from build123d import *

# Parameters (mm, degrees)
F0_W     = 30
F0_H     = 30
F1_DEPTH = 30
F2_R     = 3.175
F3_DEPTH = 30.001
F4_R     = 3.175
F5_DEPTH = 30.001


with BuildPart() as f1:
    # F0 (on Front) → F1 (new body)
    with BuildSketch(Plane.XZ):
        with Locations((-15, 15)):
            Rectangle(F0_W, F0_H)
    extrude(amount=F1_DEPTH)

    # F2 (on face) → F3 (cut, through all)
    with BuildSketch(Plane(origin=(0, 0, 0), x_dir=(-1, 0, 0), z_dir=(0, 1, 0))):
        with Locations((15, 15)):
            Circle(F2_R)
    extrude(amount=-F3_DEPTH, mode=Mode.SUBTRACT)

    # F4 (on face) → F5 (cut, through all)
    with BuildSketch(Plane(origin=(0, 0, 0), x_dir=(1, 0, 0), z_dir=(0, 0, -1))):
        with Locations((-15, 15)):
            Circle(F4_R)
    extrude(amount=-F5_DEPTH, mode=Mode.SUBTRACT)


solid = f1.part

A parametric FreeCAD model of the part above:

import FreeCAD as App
import Part
import Sketcher
from FreeCAD import Vector


def add_polygon(sketch, points):
    """Adds a closed chain of lines whose ends are joined by coincident constraints."""
    first, n = sketch.GeometryCount, len(points)
    for a, b in zip(points, points[1:] + points[:1]):
        sketch.addGeometry(Part.LineSegment(App.Vector(*a, 0), App.Vector(*b, 0)), False)
    for i in range(n):
        sketch.addConstraint(Sketcher.Constraint("Coincident", first + i, 2, first + (i + 1) % n, 1))

doc = App.newDocument("Part")
body = doc.addObject("PartDesign::Body", "Body")

# Sketch on XZ plane
sketch1 = body.newObject("Sketcher::SketchObject", "Sketch")
sketch1.AttachmentSupport = (doc.getObject("XZ_Plane"), [""])
sketch1.MapMode = "FlatFace"
add_polygon(sketch1, [(-30, 30), (-30, 0), (0, 0), (0, 30)])  # lines 0-3
sketch1.addConstraint([
    Sketcher.Constraint("Vertical", 0),
    Sketcher.Constraint("Horizontal", 1),
    Sketcher.Constraint("Vertical", 2),
    Sketcher.Constraint("Horizontal", 3),
    Sketcher.Constraint("Coincident", 1, 2, -1, 1),
    Sketcher.Constraint("Equal", 3, 0),
    Sketcher.Constraint("DistanceX", 1, 1, 1, 2, 30.0),
])
pad1 = body.newObject("PartDesign::Pad", "Pad")
pad1.Profile = sketch1
pad1.Length = 30

# Sketch on XZ plane
sketch2 = body.newObject("Sketcher::SketchObject", "Sketch001")
sketch2.AttachmentSupport = (doc.getObject("XZ_Plane"), [""])
sketch2.MapMode = "FlatFace"
sketch2.addGeometry(Part.Circle(Vector(-15, 15, 0), Vector(0, 0, 1), 3.2), False)
sketch2.addConstraint([
    Sketcher.Constraint("Diameter", 0, 6.35),
    Sketcher.Constraint("DistanceX", 0, 3, -1, 1, 15.0),
    Sketcher.Constraint("DistanceY", -1, 1, 0, 3, 15.0),
])
pocket1 = body.newObject("PartDesign::Pocket", "Pocket")
pocket1.Profile = sketch2
pocket1.Type = "ThroughAll"
pocket1.Reversed = True

# Sketch on XY plane
sketch3 = body.newObject("Sketcher::SketchObject", "Sketch002")
sketch3.AttachmentSupport = (doc.getObject("XY_Plane"), [""])
sketch3.MapMode = "FlatFace"
sketch3.addGeometry(Part.Circle(Vector(-15, -15, 0), Vector(0, 0, 1), 3.2), False)
sketch3.addConstraint([
    Sketcher.Constraint("Diameter", 0, 6.35),
    Sketcher.Constraint("DistanceX", 0, 3, -1, 1, 15.0),
    Sketcher.Constraint("DistanceY", 0, 3, -1, 1, 15.0),
])
pocket2 = body.newObject("PartDesign::Pocket", "Pocket001")
pocket2.Profile = sketch3
pocket2.Type = "ThroughAll"
pocket2.Reversed = True

doc.recompute()
